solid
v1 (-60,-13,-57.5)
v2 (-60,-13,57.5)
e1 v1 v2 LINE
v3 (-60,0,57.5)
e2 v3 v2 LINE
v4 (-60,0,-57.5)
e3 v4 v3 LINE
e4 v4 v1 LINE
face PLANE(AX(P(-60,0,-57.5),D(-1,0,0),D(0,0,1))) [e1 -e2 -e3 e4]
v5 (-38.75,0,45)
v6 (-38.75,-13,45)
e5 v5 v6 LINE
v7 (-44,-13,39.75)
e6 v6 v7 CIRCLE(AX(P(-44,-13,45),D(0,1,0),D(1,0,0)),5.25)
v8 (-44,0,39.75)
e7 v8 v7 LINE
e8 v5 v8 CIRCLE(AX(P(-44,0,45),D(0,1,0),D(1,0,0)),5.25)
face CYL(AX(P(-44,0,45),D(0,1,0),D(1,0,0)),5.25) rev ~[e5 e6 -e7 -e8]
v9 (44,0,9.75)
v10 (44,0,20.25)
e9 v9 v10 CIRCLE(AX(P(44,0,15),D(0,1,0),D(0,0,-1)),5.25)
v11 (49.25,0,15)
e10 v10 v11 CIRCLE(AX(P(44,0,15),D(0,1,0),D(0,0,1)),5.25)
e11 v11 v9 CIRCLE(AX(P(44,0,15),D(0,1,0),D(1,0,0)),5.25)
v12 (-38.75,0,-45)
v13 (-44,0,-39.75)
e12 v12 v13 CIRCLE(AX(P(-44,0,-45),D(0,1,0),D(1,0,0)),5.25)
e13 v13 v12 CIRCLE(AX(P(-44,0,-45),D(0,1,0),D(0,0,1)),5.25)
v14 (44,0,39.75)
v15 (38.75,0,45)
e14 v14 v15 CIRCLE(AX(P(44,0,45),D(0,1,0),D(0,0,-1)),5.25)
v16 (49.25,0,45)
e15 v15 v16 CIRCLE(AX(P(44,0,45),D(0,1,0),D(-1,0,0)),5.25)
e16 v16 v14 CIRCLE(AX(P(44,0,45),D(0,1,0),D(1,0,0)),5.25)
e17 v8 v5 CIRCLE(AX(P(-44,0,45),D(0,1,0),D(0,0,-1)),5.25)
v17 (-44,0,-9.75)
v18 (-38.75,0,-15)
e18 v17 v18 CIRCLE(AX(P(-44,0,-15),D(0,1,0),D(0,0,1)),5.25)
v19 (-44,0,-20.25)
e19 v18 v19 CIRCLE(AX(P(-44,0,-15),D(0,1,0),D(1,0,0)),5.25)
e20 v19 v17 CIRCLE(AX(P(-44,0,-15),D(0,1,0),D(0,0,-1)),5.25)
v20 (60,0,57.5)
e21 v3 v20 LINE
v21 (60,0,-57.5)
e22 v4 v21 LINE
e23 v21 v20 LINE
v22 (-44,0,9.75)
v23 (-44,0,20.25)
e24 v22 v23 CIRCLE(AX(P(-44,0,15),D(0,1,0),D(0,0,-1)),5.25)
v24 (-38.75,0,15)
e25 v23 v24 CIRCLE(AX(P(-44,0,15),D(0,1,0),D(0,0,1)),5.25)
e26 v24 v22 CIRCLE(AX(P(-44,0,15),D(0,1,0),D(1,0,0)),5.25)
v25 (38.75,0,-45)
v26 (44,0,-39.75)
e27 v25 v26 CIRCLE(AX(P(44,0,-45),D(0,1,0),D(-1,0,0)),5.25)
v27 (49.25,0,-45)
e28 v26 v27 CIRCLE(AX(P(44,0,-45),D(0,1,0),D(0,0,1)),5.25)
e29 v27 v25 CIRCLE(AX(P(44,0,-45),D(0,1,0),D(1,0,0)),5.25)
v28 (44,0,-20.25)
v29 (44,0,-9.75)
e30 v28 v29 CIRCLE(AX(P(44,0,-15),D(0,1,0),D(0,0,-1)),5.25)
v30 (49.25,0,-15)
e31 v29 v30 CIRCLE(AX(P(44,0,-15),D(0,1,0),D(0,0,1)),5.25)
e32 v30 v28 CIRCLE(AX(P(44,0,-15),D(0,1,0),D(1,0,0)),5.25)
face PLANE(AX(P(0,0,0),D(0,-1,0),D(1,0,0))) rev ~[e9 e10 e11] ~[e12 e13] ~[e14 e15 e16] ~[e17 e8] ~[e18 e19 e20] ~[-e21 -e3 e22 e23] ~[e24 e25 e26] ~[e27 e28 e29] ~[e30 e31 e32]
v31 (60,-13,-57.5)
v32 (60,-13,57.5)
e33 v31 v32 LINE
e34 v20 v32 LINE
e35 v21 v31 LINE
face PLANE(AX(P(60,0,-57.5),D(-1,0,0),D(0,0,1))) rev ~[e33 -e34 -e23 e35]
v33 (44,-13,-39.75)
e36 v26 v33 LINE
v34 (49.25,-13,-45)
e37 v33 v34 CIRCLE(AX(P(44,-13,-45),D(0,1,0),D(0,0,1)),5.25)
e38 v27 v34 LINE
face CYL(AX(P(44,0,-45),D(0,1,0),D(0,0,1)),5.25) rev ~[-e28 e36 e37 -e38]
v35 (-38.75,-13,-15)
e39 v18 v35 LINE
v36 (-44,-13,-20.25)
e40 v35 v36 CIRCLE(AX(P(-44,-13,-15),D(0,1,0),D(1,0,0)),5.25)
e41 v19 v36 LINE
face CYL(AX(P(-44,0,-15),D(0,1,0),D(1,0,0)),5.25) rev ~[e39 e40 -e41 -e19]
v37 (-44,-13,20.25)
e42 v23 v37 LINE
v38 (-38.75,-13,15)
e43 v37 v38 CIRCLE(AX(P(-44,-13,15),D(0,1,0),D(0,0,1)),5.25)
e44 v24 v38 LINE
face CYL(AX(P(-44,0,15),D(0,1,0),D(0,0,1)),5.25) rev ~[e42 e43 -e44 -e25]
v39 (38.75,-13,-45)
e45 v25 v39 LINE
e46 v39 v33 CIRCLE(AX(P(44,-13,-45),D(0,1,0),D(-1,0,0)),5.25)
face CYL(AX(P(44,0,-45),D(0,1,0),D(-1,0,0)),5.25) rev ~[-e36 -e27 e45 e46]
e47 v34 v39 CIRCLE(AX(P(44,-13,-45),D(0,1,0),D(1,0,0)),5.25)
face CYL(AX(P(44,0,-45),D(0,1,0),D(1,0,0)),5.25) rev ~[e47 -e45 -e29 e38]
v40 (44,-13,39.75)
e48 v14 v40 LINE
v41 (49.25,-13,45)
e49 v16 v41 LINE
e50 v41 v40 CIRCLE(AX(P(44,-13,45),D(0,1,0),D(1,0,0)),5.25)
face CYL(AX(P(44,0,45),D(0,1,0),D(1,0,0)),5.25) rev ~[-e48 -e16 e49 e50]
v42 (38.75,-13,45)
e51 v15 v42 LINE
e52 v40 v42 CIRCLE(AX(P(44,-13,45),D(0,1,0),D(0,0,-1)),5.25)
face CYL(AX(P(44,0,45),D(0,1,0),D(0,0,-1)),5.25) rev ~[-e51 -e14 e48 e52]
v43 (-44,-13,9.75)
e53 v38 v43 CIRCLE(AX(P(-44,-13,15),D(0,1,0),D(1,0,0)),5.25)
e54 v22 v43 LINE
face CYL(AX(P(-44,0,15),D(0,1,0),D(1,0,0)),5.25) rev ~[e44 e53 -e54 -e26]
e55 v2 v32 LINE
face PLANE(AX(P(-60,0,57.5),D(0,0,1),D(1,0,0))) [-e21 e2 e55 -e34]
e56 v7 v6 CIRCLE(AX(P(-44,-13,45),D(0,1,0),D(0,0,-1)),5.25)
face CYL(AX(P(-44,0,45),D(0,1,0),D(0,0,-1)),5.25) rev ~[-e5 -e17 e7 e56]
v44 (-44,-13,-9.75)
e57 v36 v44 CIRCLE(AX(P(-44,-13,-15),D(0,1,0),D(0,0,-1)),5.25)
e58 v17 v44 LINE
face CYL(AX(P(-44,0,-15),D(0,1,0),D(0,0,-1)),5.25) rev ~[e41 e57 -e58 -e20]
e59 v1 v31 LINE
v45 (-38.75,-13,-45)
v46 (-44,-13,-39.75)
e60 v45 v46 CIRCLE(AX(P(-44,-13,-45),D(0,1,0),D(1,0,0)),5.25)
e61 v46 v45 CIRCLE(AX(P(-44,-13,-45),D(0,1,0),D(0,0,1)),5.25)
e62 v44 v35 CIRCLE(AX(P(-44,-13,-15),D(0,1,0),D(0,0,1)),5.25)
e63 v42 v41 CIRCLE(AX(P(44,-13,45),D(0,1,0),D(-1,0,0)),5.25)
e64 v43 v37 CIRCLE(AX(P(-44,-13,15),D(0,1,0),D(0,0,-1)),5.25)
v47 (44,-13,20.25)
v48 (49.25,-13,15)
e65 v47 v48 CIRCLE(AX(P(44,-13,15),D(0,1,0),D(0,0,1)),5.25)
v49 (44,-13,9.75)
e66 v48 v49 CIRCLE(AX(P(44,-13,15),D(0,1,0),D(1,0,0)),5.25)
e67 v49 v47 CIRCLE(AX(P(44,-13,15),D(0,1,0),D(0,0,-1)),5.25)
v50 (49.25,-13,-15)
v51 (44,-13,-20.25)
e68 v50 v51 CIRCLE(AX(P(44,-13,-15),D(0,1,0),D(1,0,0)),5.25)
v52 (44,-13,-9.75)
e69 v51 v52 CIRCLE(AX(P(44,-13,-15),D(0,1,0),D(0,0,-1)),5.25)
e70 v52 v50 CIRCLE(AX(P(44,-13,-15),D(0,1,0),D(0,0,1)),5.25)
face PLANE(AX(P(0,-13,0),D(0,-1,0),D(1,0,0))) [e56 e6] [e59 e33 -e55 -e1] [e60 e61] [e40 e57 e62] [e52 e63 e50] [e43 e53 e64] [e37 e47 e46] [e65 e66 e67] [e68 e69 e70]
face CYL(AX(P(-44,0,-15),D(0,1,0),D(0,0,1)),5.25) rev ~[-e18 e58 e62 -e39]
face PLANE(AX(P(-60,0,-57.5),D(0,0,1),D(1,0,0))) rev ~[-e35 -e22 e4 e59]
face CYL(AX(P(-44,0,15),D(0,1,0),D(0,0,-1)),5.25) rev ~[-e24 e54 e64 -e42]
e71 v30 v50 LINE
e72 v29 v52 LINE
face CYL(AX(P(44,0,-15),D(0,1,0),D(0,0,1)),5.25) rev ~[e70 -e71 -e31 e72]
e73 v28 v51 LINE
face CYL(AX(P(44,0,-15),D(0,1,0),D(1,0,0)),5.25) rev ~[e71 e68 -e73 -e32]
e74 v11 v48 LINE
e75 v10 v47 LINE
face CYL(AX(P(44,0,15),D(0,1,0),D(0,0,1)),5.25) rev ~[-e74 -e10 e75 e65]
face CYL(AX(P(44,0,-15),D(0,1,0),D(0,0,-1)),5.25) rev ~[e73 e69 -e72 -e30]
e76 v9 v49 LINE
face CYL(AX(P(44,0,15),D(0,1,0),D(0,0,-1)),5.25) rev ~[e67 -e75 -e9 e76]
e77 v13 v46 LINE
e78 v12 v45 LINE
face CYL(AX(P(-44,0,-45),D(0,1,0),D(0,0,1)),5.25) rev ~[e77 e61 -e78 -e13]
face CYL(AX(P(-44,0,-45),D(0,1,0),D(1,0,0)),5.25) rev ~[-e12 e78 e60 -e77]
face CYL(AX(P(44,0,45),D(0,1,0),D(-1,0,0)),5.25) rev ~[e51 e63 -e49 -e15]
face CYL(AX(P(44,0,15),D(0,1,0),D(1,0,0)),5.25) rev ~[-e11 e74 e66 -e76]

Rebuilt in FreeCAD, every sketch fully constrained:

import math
import FreeCAD as App
import Part
import Sketcher
from FreeCAD import Vector


def add_polygon(sketch, points):
    """Adds a closed chain of lines whose ends are joined by coincident constraints."""
    first, n = sketch.GeometryCount, len(points)
    for a, b in zip(points, points[1:] + points[:1]):
        sketch.addGeometry(Part.LineSegment(App.Vector(*a, 0), App.Vector(*b, 0)), False)
    for i in range(n):
        sketch.addConstraint(Sketcher.Constraint("Coincident", first + i, 2, first + (i + 1) % n, 1))

doc = App.newDocument("Part")
body = doc.addObject("PartDesign::Body", "Body")

# Sketch on XZ plane
sketch1 = doc.addObject("Sketcher::SketchObject", "Sketch")
body.addObject(sketch1)
sketch1.AttachmentSupport = (doc.XZ_Plane, [""])
sketch1.MapMode = "FlatFace"
add_polygon(sketch1, [(-60, 58), (-60, -58), (60, -58), (60, 58)])  # lines 0-3
sketch1.addGeometry(Part.ArcOfCircle(Part.Circle(Vector(44, -45, 0), Vector(0, 0, 1), 5), math.radians(180), math.radians(360)), False)  # 4
sketch1.addGeometry(Part.ArcOfCircle(Part.Circle(Vector(44, -45, 0), Vector(0, 0, 1), 5), math.radians(90), math.radians(180)), False)  # 5
sketch1.addGeometry(Part.ArcOfCircle(Part.Circle(Vector(44, -45, 0), Vector(0, 0, 1), 5), math.radians(0), math.radians(90)), False)  # 6
sketch1.addGeometry(Part.ArcOfCircle(Part.Circle(Vector(44, -15, 0), Vector(0, 0, 1), 5), math.radians(-90), math.radians(0)), False)  # 7
sketch1.addGeometry(Part.ArcOfCircle(Part.Circle(Vector(44, -15, 0), Vector(0, 0, 1), 5), math.radians(90), math.radians(270)), False)  # 8
sketch1.addGeometry(Part.ArcOfCircle(Part.Circle(Vector(44, -15, 0), Vector(0, 0, 1), 5), math.radians(0), math.radians(90)), False)  # 9
sketch1.addGeometry(Part.ArcOfCircle(Part.Circle(Vector(44, 15, 0), Vector(0, 0, 1), 5), math.radians(-90), math.radians(0)), False)  # 10
sketch1.addGeometry(Part.ArcOfCircle(Part.Circle(Vector(44, 15, 0), Vector(0, 0, 1), 5), math.radians(90), math.radians(270)), False)  # 11
sketch1.addGeometry(Part.ArcOfCircle(Part.Circle(Vector(44, 15, 0), Vector(0, 0, 1), 5), math.radians(0), math.radians(90)), False)  # 12
sketch1.addGeometry(Part.ArcOfCircle(Part.Circle(Vector(44, 45, 0), Vector(0, 0, 1), 5), math.radians(-90), math.radians(0)), False)  # 13
sketch1.addGeometry(Part.ArcOfCircle(Part.Circle(Vector(44, 45, 0), Vector(0, 0, 1), 5), math.radians(180), math.radians(270)), False)  # 14
sketch1.addGeometry(Part.ArcOfCircle(Part.Circle(Vector(44, 45, 0), Vector(0, 0, 1), 5), math.radians(0), math.radians(180)), False)  # 15
sketch1.addGeometry(Part.ArcOfCircle(Part.Circle(Vector(-44, 45, 0), Vector(0, 0, 1), 5), math.radians(0), math.radians(270)), False)  # 16
sketch1.addGeometry(Part.ArcOfCircle(Part.Circle(Vector(-44, 45, 0), Vector(0, 0, 1), 5), math.radians(-90), math.radians(0)), False)  # 17
sketch1.addGeometry(Part.ArcOfCircle(Part.Circle(Vector(-44, 15, 0), Vector(0, 0, 1), 5), math.radians(90), math.radians(270)), False)  # 18
sketch1.addGeometry(Part.ArcOfCircle(Part.Circle(Vector(-44, 15, 0), Vector(0, 0, 1), 5), math.radians(0), math.radians(90)), False)  # 19
sketch1.addGeometry(Part.ArcOfCircle(Part.Circle(Vector(-44, 15, 0), Vector(0, 0, 1), 5), math.radians(-90), math.radians(0)), False)  # 20
sketch1.addGeometry(Part.ArcOfCircle(Part.Circle(Vector(-44, -15, 0), Vector(0, 0, 1), 5), math.radians(90), math.radians(270)), False)  # 21
sketch1.addGeometry(Part.ArcOfCircle(Part.Circle(Vector(-44, -15, 0), Vector(0, 0, 1), 5), math.radians(0), math.radians(90)), False)  # 22
sketch1.addGeometry(Part.ArcOfCircle(Part.Circle(Vector(-44, -15, 0), Vector(0, 0, 1), 5), math.radians(-90), math.radians(0)), False)  # 23
sketch1.addGeometry(Part.ArcOfCircle(Part.Circle(Vector(-44, -45, 0), Vector(0, 0, 1), 5), math.radians(90), math.radians(360)), False)  # 24
sketch1.addGeometry(Part.ArcOfCircle(Part.Circle(Vector(-44, -45, 0), Vector(0, 0, 1), 5), math.radians(0), math.radians(90)), False)  # 25
sketch1.addConstraint(Sketcher.Constraint("Tangent", 4, 1, 5, 2))
sketch1.addConstraint(Sketcher.Constraint("Tangent", 5, 1, 6, 2))
sketch1.addConstraint(Sketcher.Constraint("Tangent", 6, 1, 4, 2))
sketch1.addConstraint(Sketcher.Constraint("Tangent", 7, 1, 8, 2))
sketch1.addConstraint(Sketcher.Constraint("Tangent", 8, 1, 9, 2))
sketch1.addConstraint(Sketcher.Constraint("Tangent", 9, 1, 7, 2))
sketch1.addConstraint(Sketcher.Constraint("Tangent", 10, 1, 11, 2))
sketch1.addConstraint(Sketcher.Constraint("Tangent", 11, 1, 12, 2))
sketch1.addConstraint(Sketcher.Constraint("Tangent", 12, 1, 10, 2))
sketch1.addConstraint(Sketcher.Constraint("Tangent", 13, 1, 14, 2))
sketch1.addConstraint(Sketcher.Constraint("Tangent", 14, 1, 15, 2))
sketch1.addConstraint(Sketcher.Constraint("Tangent", 15, 1, 13, 2))
sketch1.addConstraint(Sketcher.Constraint("Tangent", 16, 1, 17, 2))
sketch1.addConstraint(Sketcher.Constraint("Coincident", 17, 1, 16, 2))
sketch1.addConstraint(Sketcher.Constraint("Tangent", 18, 1, 19, 2))
sketch1.addConstraint(Sketcher.Constraint("Tangent", 19, 1, 20, 2))
sketch1.addConstraint(Sketcher.Constraint("Tangent", 20, 1, 18, 2))
sketch1.addConstraint(Sketcher.Constraint("Tangent", 21, 1, 22, 2))
sketch1.addConstraint(Sketcher.Constraint("Tangent", 22, 1, 23, 2))
sketch1.addConstraint(Sketcher.Constraint("Tangent", 23, 1, 21, 2))
sketch1.addConstraint(Sketcher.Constraint("Tangent", 24, 1, 25, 2))
sketch1.addConstraint(Sketcher.Constraint("Coincident", 25, 1, 24, 2))
sketch1.addConstraint(Sketcher.Constraint("Vertical", 0))
sketch1.addConstraint(Sketcher.Constraint("Horizontal", 1))
sketch1.addConstraint(Sketcher.Constraint("Vertical", 2))
sketch1.addConstraint(Sketcher.Constraint("Horizontal", 3))
sketch1.addConstraint(Sketcher.Constraint("Equal", 6, 7))
sketch1.addConstraint(Sketcher.Constraint("Equal", 9, 10))
sketch1.addConstraint(Sketcher.Constraint("Equal", 12, 13))
sketch1.addConstraint(Sketcher.Constraint("Equal", 15, 16))
sketch1.addConstraint(Sketcher.Constraint("Equal", 17, 18))
sketch1.addConstraint(Sketcher.Constraint("Equal", 20, 21))
sketch1.addConstraint(Sketcher.Constraint("Equal", 23, 24))
sketch1.addConstraint(Sketcher.Constraint("Symmetric", 4, 3, 16, 3, -1, 1))
sketch1.addConstraint(Sketcher.Constraint("Symmetric", 7, 3, 18, 3, -1, 1))
sketch1.addConstraint(Sketcher.Constraint("Symmetric", 10, 3, 21, 3, -1, 1))
sketch1.addConstraint(Sketcher.Constraint("Symmetric", 13, 3, 24, 3, -1, 1))
sketch1.addConstraint(Sketcher.Constraint("Symmetric", 0, 2, 2, 2, -1, 1))
sketch1.addConstraint(Sketcher.Constraint("Symmetric", 13, 3, 16, 3, -2))
sketch1.addConstraint(Sketcher.Constraint("Symmetric", 10, 3, 18, 3, -2))
sketch1.addConstraint(Sketcher.Constraint("Horizontal", 25, 3, 4, 1))
sketch1.addConstraint(Sketcher.Constraint("Horizontal", 4, 1, 6, 1))
sketch1.addConstraint(Sketcher.Constraint("Horizontal", 23, 3, 9, 1))
sketch1.addConstraint(Sketcher.Constraint("Horizontal", 20, 3, 12, 1))
sketch1.addConstraint(Sketcher.Constraint("Horizontal", 17, 3, 14, 1))
sketch1.addConstraint(Sketcher.Constraint("Horizontal", 14, 1, 15, 1))
sketch1.addConstraint(Sketcher.Constraint("Horizontal", 15, 1, 16, 1))
sketch1.addConstraint(Sketcher.Constraint("Horizontal", 12, 1, 19, 1))
sketch1.addConstraint(Sketcher.Constraint("Horizontal", 9, 1, 22, 1))
sketch1.addConstraint(Sketcher.Constraint("Horizontal", 6, 1, 25, 1))
sketch1.addConstraint(Sketcher.Constraint("Vertical", 6, 3, 7, 3))
sketch1.addConstraint(Sketcher.Constraint("Vertical", 15, 3, 5, 1))
sketch1.addConstraint(Sketcher.Constraint("Vertical", 5, 1, 7, 1))
sketch1.addConstraint(Sketcher.Constraint("Vertical", 7, 1, 8, 1))
sketch1.addConstraint(Sketcher.Constraint("Vertical", 8, 1, 10, 1))
sketch1.addConstraint(Sketcher.Constraint("Vertical", 10, 1, 11, 1))
sketch1.addConstraint(Sketcher.Constraint("Vertical", 11, 1, 13, 1))
sketch1.addConstraint(Sketcher.Constraint("Vertical", 25, 3, 17, 1))
sketch1.addConstraint(Sketcher.Constraint("Vertical", 17, 1, 18, 1))
sketch1.addConstraint(Sketcher.Constraint("Vertical", 18, 1, 20, 1))
sketch1.addConstraint(Sketcher.Constraint("Vertical", 20, 1, 21, 1))
sketch1.addConstraint(Sketcher.Constraint("Vertical", 21, 1, 23, 1))
sketch1.addConstraint(Sketcher.Constraint("Vertical", 23, 1, 24, 1))
sketch1.addConstraint(Sketcher.Constraint("DistanceX", 1, 1, 1, 2, 120.0))
sketch1.addConstraint(Sketcher.Constraint("DistanceY", 0, 2, 0, 1, 115.0))
sketch1.addConstraint(Sketcher.Constraint("Radius", 4, 5.25))
sketch1.addConstraint(Sketcher.Constraint("DistanceX", -1, 1, 4, 3, 44.0))
sketch1.addConstraint(Sketcher.Constraint("DistanceY", 4, 3, -1, 1, 45.0))
sketch1.addConstraint(Sketcher.Constraint("DistanceY", 7, 3, -1, 1, 15.0))
pad1 = doc.addObject("PartDesign::Pad", "Pad")
body.addObject(pad1)
pad1.Profile = sketch1
pad1.Length = 13

doc.recompute()
